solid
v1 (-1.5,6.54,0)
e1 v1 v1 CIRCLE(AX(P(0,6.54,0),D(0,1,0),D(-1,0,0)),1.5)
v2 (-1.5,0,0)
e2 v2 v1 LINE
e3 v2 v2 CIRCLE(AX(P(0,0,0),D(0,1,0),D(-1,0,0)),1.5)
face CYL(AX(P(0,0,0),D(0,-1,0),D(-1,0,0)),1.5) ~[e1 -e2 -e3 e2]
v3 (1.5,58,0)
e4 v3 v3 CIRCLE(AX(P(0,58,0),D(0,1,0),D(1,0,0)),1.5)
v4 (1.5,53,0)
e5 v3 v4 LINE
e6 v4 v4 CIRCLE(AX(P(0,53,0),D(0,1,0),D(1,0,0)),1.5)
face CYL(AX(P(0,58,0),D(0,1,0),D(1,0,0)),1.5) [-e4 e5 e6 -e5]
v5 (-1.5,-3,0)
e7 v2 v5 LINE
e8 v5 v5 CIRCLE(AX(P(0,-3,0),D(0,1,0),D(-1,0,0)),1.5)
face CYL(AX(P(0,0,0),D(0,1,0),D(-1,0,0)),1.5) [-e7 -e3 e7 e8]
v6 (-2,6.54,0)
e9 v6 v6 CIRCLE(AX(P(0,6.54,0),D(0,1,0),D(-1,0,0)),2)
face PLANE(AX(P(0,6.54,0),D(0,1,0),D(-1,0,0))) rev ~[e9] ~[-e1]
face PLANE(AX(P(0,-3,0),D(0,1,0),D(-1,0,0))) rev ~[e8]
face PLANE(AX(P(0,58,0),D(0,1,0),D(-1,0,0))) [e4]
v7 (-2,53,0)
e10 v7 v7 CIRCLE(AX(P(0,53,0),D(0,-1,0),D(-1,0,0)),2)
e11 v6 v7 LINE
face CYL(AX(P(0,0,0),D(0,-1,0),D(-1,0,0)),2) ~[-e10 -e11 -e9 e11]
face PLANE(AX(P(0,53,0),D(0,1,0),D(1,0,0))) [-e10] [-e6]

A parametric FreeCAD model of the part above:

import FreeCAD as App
import Part
import Sketcher
from FreeCAD import Vector

doc = App.newDocument("Part")
body = doc.addObject("PartDesign::Body", "Body")

# Sketch on XZ plane
sketch1 = body.newObject("Sketcher::SketchObject", "Sketch")
sketch1.AttachmentSupport = (doc.getObject("XZ_Plane"), [""])
sketch1.MapMode = "FlatFace"
sketch1.addGeometry(Part.Circle(Vector(0, 0, 0), Vector(0, 0, 1), 2), False)
sketch1.addConstraint([
    Sketcher.Constraint("Coincident", 0, 3, -1, 1),
    Sketcher.Constraint("Diameter", 0, 4.0),
])
pad1 = body.newObject("PartDesign::Pad", "Pad")
pad1.Profile = sketch1
pad1.Type = "TwoLengths"
pad1.Length = 58
pad1.Length2 = 3
pad1.Reversed = True

# Sketch on XZ plane
sketch2 = body.newObject("Sketcher::SketchObject", "Sketch001")
sketch2.AttachmentSupport = (doc.getObject("XZ_Plane"), [""])
sketch2.MapMode = "FlatFace"
sketch2.addGeometry([
    Part.Circle(Vector(0, 0, 0), Vector(0, 0, 1), 2),
    Part.Circle(Vector(0, 0, 0), Vector(0, 0, 1), 1.5),
], False)
sketch2.addConstraint([
    Sketcher.Constraint("Coincident", 0, 3, -1, 1),
    Sketcher.Constraint("Coincident", 1, 3, -1, 1),
    Sketcher.Constraint("Diameter", 0, 4.0),
    Sketcher.Constraint("Diameter", 1, 3.0),
])
pocket1 = body.newObject("PartDesign::Pocket", "Pocket")
pocket1.Profile = sketch2
pocket1.Type = "TwoLengths"
pocket1.Length = 6.54
pocket1.Length2 = 3

# Sketch on XZ plane
sketch3 = body.newObject("Sketcher::SketchObject", "Sketch002")
sketch3.AttachmentSupport = (doc.getObject("XZ_Plane"), [""])
sketch3.MapMode = "FlatFace"
sketch3.AttachmentOffset = App.Placement(Vector(0, 0, -58), App.Rotation())
sketch3.addGeometry([
    Part.Circle(Vector(0, 0, 0), Vector(0, 0, 1), 2),
    Part.Circle(Vector(0, 0, 0), Vector(0, 0, 1), 1.5),
], False)
sketch3.addConstraint([
    Sketcher.Constraint("Coincident", 0, 3, -1, 1),
    Sketcher.Constraint("Coincident", 1, 3, -1, 1),
    Sketcher.Constraint("Diameter", 0, 4.0),
    Sketcher.Constraint("Diameter", 1, 3.0),
])
pocket2 = body.newObject("PartDesign::Pocket", "Pocket001")
pocket2.Profile = sketch3
pocket2.Length = 5
pocket2.Reversed = True

doc.recompute()
